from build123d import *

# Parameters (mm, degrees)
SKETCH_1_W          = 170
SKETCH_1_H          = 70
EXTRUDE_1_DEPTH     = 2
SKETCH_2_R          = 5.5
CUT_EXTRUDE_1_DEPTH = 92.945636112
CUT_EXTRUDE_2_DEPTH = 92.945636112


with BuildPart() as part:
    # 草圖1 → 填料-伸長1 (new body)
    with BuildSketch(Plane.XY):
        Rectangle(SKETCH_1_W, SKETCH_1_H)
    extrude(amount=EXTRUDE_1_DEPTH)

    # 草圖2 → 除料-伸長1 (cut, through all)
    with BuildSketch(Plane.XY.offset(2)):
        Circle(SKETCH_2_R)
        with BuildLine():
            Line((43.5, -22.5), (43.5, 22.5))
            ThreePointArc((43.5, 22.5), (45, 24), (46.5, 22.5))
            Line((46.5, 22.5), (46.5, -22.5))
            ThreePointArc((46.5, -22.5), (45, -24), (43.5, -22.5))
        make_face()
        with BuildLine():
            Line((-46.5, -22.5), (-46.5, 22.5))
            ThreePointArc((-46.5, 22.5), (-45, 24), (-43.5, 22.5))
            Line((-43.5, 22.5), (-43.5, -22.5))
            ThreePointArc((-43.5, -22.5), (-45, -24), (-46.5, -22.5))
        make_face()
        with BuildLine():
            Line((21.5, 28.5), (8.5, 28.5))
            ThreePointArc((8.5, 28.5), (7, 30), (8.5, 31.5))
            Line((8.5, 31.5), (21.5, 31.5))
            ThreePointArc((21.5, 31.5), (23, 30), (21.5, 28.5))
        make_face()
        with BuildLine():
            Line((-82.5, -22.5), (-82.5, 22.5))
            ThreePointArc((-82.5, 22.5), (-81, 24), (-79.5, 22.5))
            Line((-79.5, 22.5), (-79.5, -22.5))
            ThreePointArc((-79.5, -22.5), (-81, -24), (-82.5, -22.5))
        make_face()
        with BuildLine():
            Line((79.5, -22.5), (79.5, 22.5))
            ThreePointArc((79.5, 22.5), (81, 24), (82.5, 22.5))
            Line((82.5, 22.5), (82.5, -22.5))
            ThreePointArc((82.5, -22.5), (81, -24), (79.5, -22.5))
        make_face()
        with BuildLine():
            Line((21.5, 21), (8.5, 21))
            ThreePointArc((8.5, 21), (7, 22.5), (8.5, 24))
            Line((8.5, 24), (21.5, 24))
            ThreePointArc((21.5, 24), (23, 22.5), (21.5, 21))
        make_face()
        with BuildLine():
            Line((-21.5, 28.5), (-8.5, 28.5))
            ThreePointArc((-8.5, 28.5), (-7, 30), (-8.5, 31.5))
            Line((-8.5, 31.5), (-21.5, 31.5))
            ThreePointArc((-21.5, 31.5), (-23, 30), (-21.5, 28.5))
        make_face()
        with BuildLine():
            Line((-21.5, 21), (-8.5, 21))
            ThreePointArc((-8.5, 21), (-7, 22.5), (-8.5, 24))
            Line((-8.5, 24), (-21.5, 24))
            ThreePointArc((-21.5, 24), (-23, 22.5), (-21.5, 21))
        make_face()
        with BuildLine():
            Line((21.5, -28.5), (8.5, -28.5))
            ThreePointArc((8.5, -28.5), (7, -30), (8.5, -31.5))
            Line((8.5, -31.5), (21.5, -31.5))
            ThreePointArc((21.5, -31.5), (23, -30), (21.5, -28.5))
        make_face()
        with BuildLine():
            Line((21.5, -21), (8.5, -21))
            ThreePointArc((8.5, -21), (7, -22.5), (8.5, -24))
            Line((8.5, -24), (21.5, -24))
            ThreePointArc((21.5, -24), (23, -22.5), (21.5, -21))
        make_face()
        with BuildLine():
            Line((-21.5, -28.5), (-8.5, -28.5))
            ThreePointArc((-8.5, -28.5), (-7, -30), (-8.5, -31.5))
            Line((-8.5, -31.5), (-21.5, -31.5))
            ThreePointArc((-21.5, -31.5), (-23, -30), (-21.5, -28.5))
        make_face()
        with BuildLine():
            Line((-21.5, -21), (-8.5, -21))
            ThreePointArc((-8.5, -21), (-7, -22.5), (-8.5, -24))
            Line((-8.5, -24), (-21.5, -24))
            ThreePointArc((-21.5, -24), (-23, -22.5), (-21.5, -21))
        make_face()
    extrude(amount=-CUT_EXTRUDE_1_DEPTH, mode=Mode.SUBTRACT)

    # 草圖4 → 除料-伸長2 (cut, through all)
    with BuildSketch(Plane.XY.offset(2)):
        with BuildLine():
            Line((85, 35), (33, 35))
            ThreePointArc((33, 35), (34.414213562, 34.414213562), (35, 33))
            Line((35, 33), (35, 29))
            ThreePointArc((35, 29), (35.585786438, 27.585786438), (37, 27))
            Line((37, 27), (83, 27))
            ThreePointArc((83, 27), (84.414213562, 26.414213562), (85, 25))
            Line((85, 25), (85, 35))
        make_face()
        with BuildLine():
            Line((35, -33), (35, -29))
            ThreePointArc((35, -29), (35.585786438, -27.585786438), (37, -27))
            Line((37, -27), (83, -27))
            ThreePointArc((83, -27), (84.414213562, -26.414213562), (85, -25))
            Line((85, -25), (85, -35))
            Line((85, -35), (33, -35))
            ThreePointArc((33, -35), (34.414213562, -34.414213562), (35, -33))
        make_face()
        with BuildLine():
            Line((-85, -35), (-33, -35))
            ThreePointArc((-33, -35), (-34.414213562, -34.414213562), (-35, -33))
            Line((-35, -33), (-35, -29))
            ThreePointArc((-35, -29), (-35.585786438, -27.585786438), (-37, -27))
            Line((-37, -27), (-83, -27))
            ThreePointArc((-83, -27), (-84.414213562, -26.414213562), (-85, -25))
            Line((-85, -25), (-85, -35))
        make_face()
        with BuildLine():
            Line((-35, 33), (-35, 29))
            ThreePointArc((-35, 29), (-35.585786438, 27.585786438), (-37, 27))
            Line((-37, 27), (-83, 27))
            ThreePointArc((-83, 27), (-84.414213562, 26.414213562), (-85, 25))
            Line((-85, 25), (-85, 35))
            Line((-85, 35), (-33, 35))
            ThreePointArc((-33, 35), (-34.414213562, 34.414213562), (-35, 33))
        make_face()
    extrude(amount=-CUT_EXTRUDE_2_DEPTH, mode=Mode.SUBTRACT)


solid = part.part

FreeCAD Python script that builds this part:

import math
import FreeCAD as App
import Part
import Sketcher
from FreeCAD import Vector


def add_polygon(sketch, points):
    """Adds a closed chain of lines whose ends are joined by coincident constraints."""
    first, n = sketch.GeometryCount, len(points)
    for a, b in zip(points, points[1:] + points[:1]):
        sketch.addGeometry(Part.LineSegment(App.Vector(*a, 0), App.Vector(*b, 0)), False)
    for i in range(n):
        sketch.addConstraint(Sketcher.Constraint("Coincident", first + i, 2, first + (i + 1) % n, 1))

doc = App.newDocument("Part")
body = doc.addObject("PartDesign::Body", "Body")

sketch1 = doc.addObject("Sketcher::SketchObject", "Sketch")
body.addObject(sketch1)
sketch1.AttachmentSupport = (doc.XY_Plane, [""])
sketch1.MapMode = "FlatFace"
add_polygon(sketch1, [(-85, 35), (-85, -35), (85, -35), (85, 35)])
sketch1.addConstraint([
    Sketcher.Constraint("Vertical", 0),
    Sketcher.Constraint("Horizontal", 1),
    Sketcher.Constraint("Vertical", 2),
    Sketcher.Constraint("Horizontal", 3),
    Sketcher.Constraint("Symmetric", 0, 2, 2, 2, -1, 1),
    Sketcher.Constraint("DistanceX", 1, 1, 1, 2, 170.0),
    Sketcher.Constraint("DistanceY", 0, 2, 0, 1, 70.0),
])
pad1 = doc.addObject("PartDesign::Pad", "Pad")
body.addObject(pad1)
pad1.Profile = sketch1
pad1.Length = 2

sketch2 = doc.addObject("Sketcher::SketchObject", "Sketch001")
body.addObject(sketch2)
sketch2.AttachmentSupport = (doc.XY_Plane, [""])
sketch2.MapMode = "FlatFace"
sketch2.AttachmentOffset = App.Placement(Vector(0, 0, 2), App.Rotation())
sketch2.addGeometry([
    Part.Circle(Vector(0, 0, 0), Vector(0, 0, 1), 5.5),
    Part.LineSegment(Vector(43.5, 22.5, 0), Vector(43.5, -22.5, 0)),
    Part.ArcOfCircle(Part.Circle(Vector(45, -22.5, 0), Vector(0, 0, 1), 1.5), math.radians(180), math.radians(360)),
    Part.LineSegment(Vector(46.5, -22.5, 0), Vector(46.5, 22.5, 0)),
    Part.ArcOfCircle(Part.Circle(Vector(45, 22.5, 0), Vector(0, 0, 1), 1.5), math.radians(0), math.radians(180)),
    Part.LineSegment(Vector(-46.5, 22.5, 0), Vector(-46.5, -22.5, 0)),
    Part.ArcOfCircle(Part.Circle(Vector(-45, -22.5, 0), Vector(0, 0, 1), 1.5), math.radians(180), math.radians(360)),
    Part.LineSegment(Vector(-43.5, -22.5, 0), Vector(-43.5, 22.5, 0)),
    Part.ArcOfCircle(Part.Circle(Vector(-45, 22.5, 0), Vector(0, 0, 1), 1.5), math.radians(0), math.radians(180)),
    Part.LineSegment(Vector(8.5, 28.5, 0), Vector(21.5, 28.5, 0)),
    Part.ArcOfCircle(Part.Circle(Vector(21.5, 30, 0), Vector(0, 0, 1), 1.5), math.radians(-90), math.radians(90)),
    Part.LineSegment(Vector(21.5, 31.5, 0), Vector(8.5, 31.5, 0)),
    Part.ArcOfCircle(Part.Circle(Vector(8.5, 30, 0), Vector(0, 0, 1), 1.5), math.radians(90), math.radians(270)),
    Part.LineSegment(Vector(-82.5, 22.5, 0), Vector(-82.5, -22.5, 0)),
    Part.ArcOfCircle(Part.Circle(Vector(-81, -22.5, 0), Vector(0, 0, 1), 1.5), math.radians(180), math.radians(360)),
    Part.LineSegment(Vector(-79.5, -22.5, 0), Vector(-79.5, 22.5, 0)),
    Part.ArcOfCircle(Part.Circle(Vector(-81, 22.5, 0), Vector(0, 0, 1), 1.5), math.radians(0), math.radians(180)),
    Part.LineSegment(Vector(79.5, 22.5, 0), Vector(79.5, -22.5, 0)),
    Part.ArcOfCircle(Part.Circle(Vector(81, -22.5, 0), Vector(0, 0, 1), 1.5), math.radians(180), math.radians(360)),
    Part.LineSegment(Vector(82.5, -22.5, 0), Vector(82.5, 22.5, 0)),
    Part.ArcOfCircle(Part.Circle(Vector(81, 22.5, 0), Vector(0, 0, 1), 1.5), math.radians(0), math.radians(180)),
    Part.LineSegment(Vector(8.5, 21, 0), Vector(21.5, 21, 0)),
    Part.ArcOfCircle(Part.Circle(Vector(21.5, 22.5, 0), Vector(0, 0, 1), 1.5), math.radians(-90), math.radians(90)),
    Part.LineSegment(Vector(21.5, 24, 0), Vector(8.5, 24, 0)),
    Part.ArcOfCircle(Part.Circle(Vector(8.5, 22.5, 0), Vector(0, 0, 1), 1.5), math.radians(90), math.radians(270)),
    Part.LineSegment(Vector(-21.5, 28.5, 0), Vector(-8.5, 28.5, 0)),
    Part.ArcOfCircle(Part.Circle(Vector(-8.5, 30, 0), Vector(0, 0, 1), 1.5), math.radians(-90), math.radians(90)),
    Part.LineSegment(Vector(-8.5, 31.5, 0), Vector(-21.5, 31.5, 0)),
    Part.ArcOfCircle(Part.Circle(Vector(-21.5, 30, 0), Vector(0, 0, 1), 1.5), math.radians(90), math.radians(270)),
    Part.LineSegment(Vector(-21.5, 21, 0), Vector(-8.5, 21, 0)),
    Part.ArcOfCircle(Part.Circle(Vector(-8.5, 22.5, 0), Vector(0, 0, 1), 1.5), math.radians(-90), math.radians(90)),
    Part.LineSegment(Vector(-8.5, 24, 0), Vector(-21.5, 24, 0)),
    Part.ArcOfCircle(Part.Circle(Vector(-21.5, 22.5, 0), Vector(0, 0, 1), 1.5), math.radians(90), math.radians(270)),
    Part.LineSegment(Vector(21.5, -28.5, 0), Vector(8.5, -28.5, 0)),
    Part.ArcOfCircle(Part.Circle(Vector(8.5, -30, 0), Vector(0, 0, 1), 1.5), math.radians(90), math.radians(270)),
    Part.LineSegment(Vector(8.5, -31.5, 0), Vector(21.5, -31.5, 0)),
    Part.ArcOfCircle(Part.Circle(Vector(21.5, -30, 0), Vector(0, 0, 1), 1.5), math.radians(-90), math.radians(90)),
    Part.LineSegment(Vector(21.5, -21, 0), Vector(8.5, -21, 0)),
    Part.ArcOfCircle(Part.Circle(Vector(8.5, -22.5, 0), Vector(0, 0, 1), 1.5), math.radians(90), math.radians(270)),
    Part.LineSegment(Vector(8.5, -24, 0), Vector(21.5, -24, 0)),
    Part.ArcOfCircle(Part.Circle(Vector(21.5, -22.5, 0), Vector(0, 0, 1), 1.5), math.radians(-90), math.radians(90)),
    Part.LineSegment(Vector(-8.5, -28.5, 0), Vector(-21.5, -28.5, 0)),
    Part.ArcOfCircle(Part.Circle(Vector(-21.5, -30, 0), Vector(0, 0, 1), 1.5), math.radians(90), math.radians(270)),
    Part.LineSegment(Vector(-21.5, -31.5, 0), Vector(-8.5, -31.5, 0)),
    Part.ArcOfCircle(Part.Circle(Vector(-8.5, -30, 0), Vector(0, 0, 1), 1.5), math.radians(-90), math.radians(90)),
    Part.LineSegment(Vector(-8.5, -21, 0), Vector(-21.5, -21, 0)),
    Part.ArcOfCircle(Part.Circle(Vector(-21.5, -22.5, 0), Vector(0, 0, 1), 1.5), math.radians(90), math.radians(270)),
    Part.LineSegment(Vector(-21.5, -24, 0), Vector(-8.5, -24, 0)),
    Part.ArcOfCircle(Part.Circle(Vector(-8.5, -22.5, 0), Vector(0, 0, 1), 1.5), math.radians(-90), math.radians(90)),
], False)
sketch2.addConstraint([
    Sketcher.Constraint("Tangent", 1, 2, 2, 1),
    Sketcher.Constraint("Tangent", 2, 2, 3, 1),
    Sketcher.Constraint("Tangent", 3, 2, 4, 1),
    Sketcher.Constraint("Tangent", 4, 2, 1, 1),
    Sketcher.Constraint("Tangent", 5, 2, 6, 1),
    Sketcher.Constraint("Tangent", 6, 2, 7, 1),
    Sketcher.Constraint("Tangent", 7, 2, 8, 1),
    Sketcher.Constraint("Tangent", 8, 2, 5, 1),
    Sketcher.Constraint("Tangent", 9, 2, 10, 1),
    Sketcher.Constraint("Tangent", 10, 2, 11, 1),
    Sketcher.Constraint("Tangent", 11, 2, 12, 1),
    Sketcher.Constraint("Tangent", 12, 2, 9, 1),
    Sketcher.Constraint("Tangent", 13, 2, 14, 1),
    Sketcher.Constraint("Tangent", 14, 2, 15, 1),
    Sketcher.Constraint("Tangent", 15, 2, 16, 1),
    Sketcher.Constraint("Tangent", 16, 2, 13, 1),
    Sketcher.Constraint("Tangent", 17, 2, 18, 1),
    Sketcher.Constraint("Tangent", 18, 2, 19, 1),
    Sketcher.Constraint("Tangent", 19, 2, 20, 1),
    Sketcher.Constraint("Tangent", 20, 2, 17, 1),
    Sketcher.Constraint("Tangent", 21, 2, 22, 1),
    Sketcher.Constraint("Tangent", 22, 2, 23, 1),
    Sketcher.Constraint("Tangent", 23, 2, 24, 1),
    Sketcher.Constraint("Tangent", 24, 2, 21, 1),
    Sketcher.Constraint("Tangent", 25, 2, 26, 1),
    Sketcher.Constraint("Tangent", 26, 2, 27, 1),
    Sketcher.Constraint("Tangent", 27, 2, 28, 1),
    Sketcher.Constraint("Tangent", 28, 2, 25, 1),
    Sketcher.Constraint("Tangent", 29, 2, 30, 1),
    Sketcher.Constraint("Tangent", 30, 2, 31, 1),
    Sketcher.Constraint("Tangent", 31, 2, 32, 1),
    Sketcher.Constraint("Tangent", 32, 2, 29, 1),
    Sketcher.Constraint("Tangent", 33, 2, 34, 1),
    Sketcher.Constraint("Tangent", 34, 2, 35, 1),
    Sketcher.Constraint("Tangent", 35, 2, 36, 1),
    Sketcher.Constraint("Tangent", 36, 2, 33, 1),
    Sketcher.Constraint("Tangent", 37, 2, 38, 1),
    Sketcher.Constraint("Tangent", 38, 2, 39, 1),
    Sketcher.Constraint("Tangent", 39, 2, 40, 1),
    Sketcher.Constraint("Tangent", 40, 2, 37, 1),
    Sketcher.Constraint("Tangent", 41, 2, 42, 1),
    Sketcher.Constraint("Tangent", 42, 2, 43, 1),
    Sketcher.Constraint("Tangent", 43, 2, 44, 1),
    Sketcher.Constraint("Tangent", 44, 2, 41, 1),
    Sketcher.Constraint("Tangent", 45, 2, 46, 1),
    Sketcher.Constraint("Tangent", 46, 2, 47, 1),
    Sketcher.Constraint("Tangent", 47, 2, 48, 1),
    Sketcher.Constraint("Tangent", 48, 2, 45, 1),
    Sketcher.Constraint("Vertical", 1),
    Sketcher.Constraint("Vertical", 3),
    Sketcher.Constraint("Vertical", 5),
    Sketcher.Constraint("Vertical", 7),
    Sketcher.Constraint("Horizontal", 9),
    Sketcher.Constraint("Horizontal", 11),
    Sketcher.Constraint("Vertical", 13),
    Sketcher.Constraint("Vertical", 15),
    Sketcher.Constraint("Vertical", 17),
    Sketcher.Constraint("Vertical", 19),
    Sketcher.Constraint("Horizontal", 21),
    Sketcher.Constraint("Horizontal", 23),
    Sketcher.Constraint("Horizontal", 25),
    Sketcher.Constraint("Horizontal", 27),
    Sketcher.Constraint("Horizontal", 29),
    Sketcher.Constraint("Horizontal", 31),
    Sketcher.Constraint("Horizontal", 33),
    Sketcher.Constraint("Horizontal", 35),
    Sketcher.Constraint("Horizontal", 37),
    Sketcher.Constraint("Horizontal", 39),
    Sketcher.Constraint("Horizontal", 41),
    Sketcher.Constraint("Horizontal", 43),
    Sketcher.Constraint("Horizontal", 45),
    Sketcher.Constraint("Horizontal", 47),
    Sketcher.Constraint("Coincident", 0, 3, -1, 1),
    Sketcher.Constraint("Equal", 4, 6),
    Sketcher.Constraint("Equal", 8, 10),
    Sketcher.Constraint("Equal", 12, 14),
    Sketcher.Constraint("Equal", 16, 18),
    Sketcher.Constraint("Equal", 20, 22),
    Sketcher.Constraint("Equal", 24, 26),
    Sketcher.Constraint("Equal", 28, 30),
    Sketcher.Constraint("Equal", 32, 34),
    Sketcher.Constraint("Equal", 36, 38),
    Sketcher.Constraint("Equal", 40, 42),
    Sketcher.Constraint("Equal", 44, 46),
    Sketcher.Constraint("Symmetric", 4, 3, 6, 3, -1, 1),
    Sketcher.Constraint("Symmetric", 16, 3, 18, 3, -1, 1),
    Sketcher.Constraint("Symmetric", 26, 3, 34, 3, -1, 1),
    Sketcher.Constraint("Symmetric", 30, 3, 38, 3, -1, 1),
    Sketcher.Constraint("Symmetric", 10, 3, 42, 3, -1, 1),
    Sketcher.Constraint("Symmetric", 22, 3, 46, 3, -1, 1),
    Sketcher.Constraint("Symmetric", 12, 3, 26, 3, -2),
    Sketcher.Constraint("Symmetric", 24, 3, 30, 3, -2),
    Sketcher.Constraint("Horizontal", 2, 3, 6, 3),
    Sketcher.Constraint("Horizontal", 4, 3, 8, 3),
    Sketcher.Constraint("Horizontal", 6, 3, 14, 3),
    Sketcher.Constraint("Horizontal", 8, 3, 16, 3),
    Sketcher.Constraint("Horizontal", 16, 3, 20, 3),
    Sketcher.Constraint("Horizontal", 20, 3, 22, 3),
    Sketcher.Constraint("Vertical", 10, 3, 22, 3),
    Sketcher.Constraint("Vertical", 12, 3, 24, 3),
    Sketcher.Constraint("Vertical", 28, 3, 32, 3),
    Sketcher.Constraint("Vertical", 22, 3, 36, 3),
    Sketcher.Constraint("Vertical", 36, 3, 40, 3),
    Sketcher.Constraint("Vertical", 32, 3, 42, 3),
    Sketcher.Constraint("Vertical", 30, 3, 44, 3),
    Sketcher.Constraint("Vertical", 44, 3, 48, 3),
    Sketcher.Constraint("Diameter", 0, 11.0),
    Sketcher.Constraint("Radius", 2, 1.5),
    Sketcher.Constraint("DistanceX", 9, 1, 9, 2, 13.0),
    Sketcher.Constraint("DistanceY", 1, 2, 1, 1, 45.0),
    Sketcher.Constraint("DistanceX", -1, 1, 2, 3, 45.0),
    Sketcher.Constraint("DistanceY", -1, 1, 10, 3, 30.0),
    Sketcher.Constraint("DistanceX", 14, 3, -1, 1, 81.0),
    Sketcher.Constraint("DistanceX", -1, 1, 10, 3, 21.5),
])
pocket1 = doc.addObject("PartDesign::Pocket", "Pocket")
body.addObject(pocket1)
pocket1.Profile = sketch2
pocket1.Type = "ThroughAll"

sketch3 = doc.addObject("Sketcher::SketchObject", "Sketch002")
body.addObject(sketch3)
sketch3.AttachmentSupport = (doc.XY_Plane, [""])
sketch3.MapMode = "FlatFace"
sketch3.AttachmentOffset = App.Placement(Vector(0, 0, 2), App.Rotation())
sketch3.addGeometry([
    Part.LineSegment(Vector(85, 35, 0), Vector(33, 35, 0)),
    Part.ArcOfCircle(Part.Circle(Vector(33, 33, 0), Vector(0, 0, 1), 2), math.radians(0), math.radians(90)),
    Part.LineSegment(Vector(35, 33, 0), Vector(35, 29, 0)),
    Part.ArcOfCircle(Part.Circle(Vector(37, 29, 0), Vector(0, 0, 1), 2), math.radians(-180), math.radians(-90)),
    Part.LineSegment(Vector(37, 27, 0), Vector(83, 27, 0)),
    Part.ArcOfCircle(Part.Circle(Vector(83, 25, 0), Vector(0, 0, 1), 2), math.radians(0), math.radians(90)),
    Part.LineSegment(Vector(85, 25, 0), Vector(85, 35, 0)),
    Part.LineSegment(Vector(35, -29, 0), Vector(35, -33, 0)),
    Part.ArcOfCircle(Part.Circle(Vector(33, -33, 0), Vector(0, 0, 1), 2), math.radians(-90), math.radians(0)),
    Part.LineSegment(Vector(33, -35, 0), Vector(85, -35, 0)),
    Part.LineSegment(Vector(85, -35, 0), Vector(85, -25, 0)),
    Part.ArcOfCircle(Part.Circle(Vector(83, -25, 0), Vector(0, 0, 1), 2), math.radians(-90), math.radians(0)),
    Part.LineSegment(Vector(83, -27, 0), Vector(37, -27, 0)),
    Part.ArcOfCircle(Part.Circle(Vector(37, -29, 0), Vector(0, 0, 1), 2), math.radians(90), math.radians(180)),
    Part.LineSegment(Vector(-85, -35, 0), Vector(-33, -35, 0)),
    Part.ArcOfCircle(Part.Circle(Vector(-33, -33, 0), Vector(0, 0, 1), 2), math.radians(-180), math.radians(-90)),
    Part.LineSegment(Vector(-35, -33, 0), Vector(-35, -29, 0)),
    Part.ArcOfCircle(Part.Circle(Vector(-37, -29, 0), Vector(0, 0, 1), 2), math.radians(0), math.radians(90)),
    Part.LineSegment(Vector(-37, -27, 0), Vector(-83, -27, 0)),
    Part.ArcOfCircle(Part.Circle(Vector(-83, -25, 0), Vector(0, 0, 1), 2), math.radians(-180), math.radians(-90)),
    Part.LineSegment(Vector(-85, -25, 0), Vector(-85, -35, 0)),
    Part.LineSegment(Vector(-35, 29, 0), Vector(-35, 33, 0)),
    Part.ArcOfCircle(Part.Circle(Vector(-33, 33, 0), Vector(0, 0, 1), 2), math.radians(90), math.radians(180)),
    Part.LineSegment(Vector(-33, 35, 0), Vector(-85, 35, 0)),
    Part.LineSegment(Vector(-85, 35, 0), Vector(-85, 25, 0)),
    Part.ArcOfCircle(Part.Circle(Vector(-83, 25, 0), Vector(0, 0, 1), 2), math.radians(90), math.radians(180)),
    Part.LineSegment(Vector(-83, 27, 0), Vector(-37, 27, 0)),
    Part.ArcOfCircle(Part.Circle(Vector(-37, 29, 0), Vector(0, 0, 1), 2), math.radians(-90), math.radians(0)),
], False)
sketch3.addConstraint([
    Sketcher.Constraint("Tangent", 0, 2, 1, 2),
    Sketcher.Constraint("Tangent", 1, 1, 2, 1),
    Sketcher.Constraint("Tangent", 2, 2, 3, 1),
    Sketcher.Constraint("Tangent", 3, 2, 4, 1),
    Sketcher.Constraint("Tangent", 4, 2, 5, 2),
    Sketcher.Constraint("Tangent", 5, 1, 6, 1),
    Sketcher.Constraint("Coincident", 6, 2, 0, 1),
    Sketcher.Constraint("Tangent", 7, 2, 8, 2),
    Sketcher.Constraint("Tangent", 8, 1, 9, 1),
    Sketcher.Constraint("Coincident", 9, 2, 10, 1),
    Sketcher.Constraint("Tangent", 10, 2, 11, 2),
    Sketcher.Constraint("Tangent", 11, 1, 12, 1),
    Sketcher.Constraint("Tangent", 12, 2, 13, 1),
    Sketcher.Constraint("Tangent", 13, 2, 7, 1),
    Sketcher.Constraint("Tangent", 14, 2, 15, 2),
    Sketcher.Constraint("Tangent", 15, 1, 16, 1),
    Sketcher.Constraint("Tangent", 16, 2, 17, 1),
    Sketcher.Constraint("Tangent", 17, 2, 18, 1),
    Sketcher.Constraint("Tangent", 18, 2, 19, 2),
    Sketcher.Constraint("Tangent", 19, 1, 20, 1),
    Sketcher.Constraint("Coincident", 20, 2, 14, 1),
    Sketcher.Constraint("Tangent", 21, 2, 22, 2),
    Sketcher.Constraint("Tangent", 22, 1, 23, 1),
    Sketcher.Constraint("Coincident", 23, 2, 24, 1),
    Sketcher.Constraint("Tangent", 24, 2, 25, 2),
    Sketcher.Constraint("Tangent", 25, 1, 26, 1),
    Sketcher.Constraint("Tangent", 26, 2, 27, 1),
    Sketcher.Constraint("Tangent", 27, 2, 21, 1),
    Sketcher.Constraint("Horizontal", 0),
    Sketcher.Constraint("Vertical", 2),
    Sketcher.Constraint("Horizontal", 4),
    Sketcher.Constraint("Vertical", 6),
    Sketcher.Constraint("Vertical", 7),
    Sketcher.Constraint("Horizontal", 9),
    Sketcher.Constraint("Vertical", 10),
    Sketcher.Constraint("Horizontal", 12),
    Sketcher.Constraint("Horizontal", 14),
    Sketcher.Constraint("Vertical", 16),
    Sketcher.Constraint("Horizontal", 18),
    Sketcher.Constraint("Vertical", 20),
    Sketcher.Constraint("Vertical", 21),
    Sketcher.Constraint("Horizontal", 23),
    Sketcher.Constraint("Vertical", 24),
    Sketcher.Constraint("Horizontal", 26),
    Sketcher.Constraint("Equal", 1, 3),
    Sketcher.Constraint("Equal", 3, 5),
    Sketcher.Constraint("Equal", 5, 8),
    Sketcher.Constraint("Equal", 8, 11),
    Sketcher.Constraint("Equal", 11, 13),
    Sketcher.Constraint("Equal", 13, 15),
    Sketcher.Constraint("Equal", 15, 17),
    Sketcher.Constraint("Equal", 17, 19),
    Sketcher.Constraint("Equal", 19, 22),
    Sketcher.Constraint("Equal", 22, 25),
    Sketcher.Constraint("Equal", 25, 27),
    Sketcher.Constraint("Symmetric", 1, 3, 15, 3, -1, 1),
    Sketcher.Constraint("Symmetric", 5, 3, 19, 3, -1, 1),
    Sketcher.Constraint("Symmetric", 8, 3, 22, 3, -1, 1),
    Sketcher.Constraint("Symmetric", 11, 3, 25, 3, -1, 1),
    Sketcher.Constraint("Symmetric", 8, 3, 15, 3, -2),
    Sketcher.Constraint("Symmetric", 11, 3, 19, 3, -2),
    Sketcher.Constraint("Radius", 1, 2.0),
    Sketcher.Constraint("DistanceX", 0, 2, 0, 1, 52.0),
    Sketcher.Constraint("DistanceY", 2, 2, 2, 1, 4.0),
    Sketcher.Constraint("DistanceX", -1, 1, 1, 3, 33.0),
    Sketcher.Constraint("DistanceY", -1, 1, 1, 3, 33.0),
])
pocket2 = doc.addObject("PartDesign::Pocket", "Pocket001")
body.addObject(pocket2)
pocket2.Profile = sketch3
pocket2.Type = "ThroughAll"

doc.recompute()
